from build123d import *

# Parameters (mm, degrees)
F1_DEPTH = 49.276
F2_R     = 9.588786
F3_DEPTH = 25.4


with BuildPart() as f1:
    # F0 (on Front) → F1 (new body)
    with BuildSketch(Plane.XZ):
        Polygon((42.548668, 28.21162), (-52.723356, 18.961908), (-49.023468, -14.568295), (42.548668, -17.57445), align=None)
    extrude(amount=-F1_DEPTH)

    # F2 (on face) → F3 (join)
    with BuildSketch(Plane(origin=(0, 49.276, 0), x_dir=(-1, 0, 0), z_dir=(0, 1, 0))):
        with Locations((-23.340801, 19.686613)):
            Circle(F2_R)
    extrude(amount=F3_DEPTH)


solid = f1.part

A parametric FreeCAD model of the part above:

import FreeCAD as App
import Part
import Sketcher
from FreeCAD import Vector


def add_polygon(sketch, points):
    """Adds a closed chain of lines whose ends are joined by coincident constraints."""
    first, n = sketch.GeometryCount, len(points)
    for a, b in zip(points, points[1:] + points[:1]):
        sketch.addGeometry(Part.LineSegment(App.Vector(*a, 0), App.Vector(*b, 0)), False)
    for i in range(n):
        sketch.addConstraint(Sketcher.Constraint("Coincident", first + i, 2, first + (i + 1) % n, 1))

doc = App.newDocument("Part")
params = doc.addObject("Spreadsheet::Sheet", "Params")
for row, (alias, value) in enumerate([
    ("pad1_length", "1.94 in"),
    ("pad2_length", "1 in"),
], start=1):
    params.set(f"A{row}", alias)
    params.set(f"B{row}", "=" + value)
    params.setAlias(f"B{row}", alias)

body = doc.addObject("PartDesign::Body", "Body")

# Sketch on XZ plane
sketch1 = body.newObject("Sketcher::SketchObject", "Sketch")
sketch1.AttachmentSupport = (doc.getObject("XZ_Plane"), [""])
sketch1.MapMode = "FlatFace"
add_polygon(sketch1, [(43, 28), (-53, 19), (-49, -15), (43, -18)])  # lines 0-3
sketch1.addConstraint(Sketcher.Constraint("Vertical", 3))
sketch1.addConstraint(Sketcher.Constraint("DistanceY", 3, 1, 3, 2, 45.78607))
sketch1.addConstraint(Sketcher.Constraint("DistanceY", -1, 1, 0, 2, 18.961908))
sketch1.addConstraint(Sketcher.Constraint("DistanceY", 2, 2, -1, 1, 17.57445))
sketch1.addConstraint(Sketcher.Constraint("DistanceX", 0, 2, 1, 2, 3.699888))
sketch1.addConstraint(Sketcher.Constraint("Distance", 0, 95.719986))
sketch1.addConstraint(Sketcher.Constraint("Distance", 1, 33.733717))
sketch1.addConstraint(Sketcher.Constraint("DistanceX", 0, 2, -1, 1, 52.723356))
pad1 = body.newObject("PartDesign::Pad", "Pad")
pad1.Profile = sketch1
pad1.setExpression("Length", "Params.pad1_length")
pad1.Reversed = True

# Sketch on XZ plane
sketch2 = body.newObject("Sketcher::SketchObject", "Sketch001")
sketch2.AttachmentSupport = (doc.getObject("XZ_Plane"), [""])
sketch2.MapMode = "FlatFace"
sketch2.AttachmentOffset = App.Placement(Vector(0, 0, -1.94 * 25.4), App.Rotation())
sketch2.addGeometry(Part.Circle(Vector(23, 20, 0), Vector(0, 0, 1), 10), False)
sketch2.addConstraint(Sketcher.Constraint("Diameter", 0, 19.177572))
sketch2.addConstraint(Sketcher.Constraint("DistanceX", -1, 1, 0, 3, 23.340801))
sketch2.addConstraint(Sketcher.Constraint("DistanceY", -1, 1, 0, 3, 19.686613))
pad2 = body.newObject("PartDesign::Pad", "Pad001")
pad2.Profile = sketch2
pad2.setExpression("Length", "Params.pad2_length")
pad2.Reversed = True

doc.recompute()
